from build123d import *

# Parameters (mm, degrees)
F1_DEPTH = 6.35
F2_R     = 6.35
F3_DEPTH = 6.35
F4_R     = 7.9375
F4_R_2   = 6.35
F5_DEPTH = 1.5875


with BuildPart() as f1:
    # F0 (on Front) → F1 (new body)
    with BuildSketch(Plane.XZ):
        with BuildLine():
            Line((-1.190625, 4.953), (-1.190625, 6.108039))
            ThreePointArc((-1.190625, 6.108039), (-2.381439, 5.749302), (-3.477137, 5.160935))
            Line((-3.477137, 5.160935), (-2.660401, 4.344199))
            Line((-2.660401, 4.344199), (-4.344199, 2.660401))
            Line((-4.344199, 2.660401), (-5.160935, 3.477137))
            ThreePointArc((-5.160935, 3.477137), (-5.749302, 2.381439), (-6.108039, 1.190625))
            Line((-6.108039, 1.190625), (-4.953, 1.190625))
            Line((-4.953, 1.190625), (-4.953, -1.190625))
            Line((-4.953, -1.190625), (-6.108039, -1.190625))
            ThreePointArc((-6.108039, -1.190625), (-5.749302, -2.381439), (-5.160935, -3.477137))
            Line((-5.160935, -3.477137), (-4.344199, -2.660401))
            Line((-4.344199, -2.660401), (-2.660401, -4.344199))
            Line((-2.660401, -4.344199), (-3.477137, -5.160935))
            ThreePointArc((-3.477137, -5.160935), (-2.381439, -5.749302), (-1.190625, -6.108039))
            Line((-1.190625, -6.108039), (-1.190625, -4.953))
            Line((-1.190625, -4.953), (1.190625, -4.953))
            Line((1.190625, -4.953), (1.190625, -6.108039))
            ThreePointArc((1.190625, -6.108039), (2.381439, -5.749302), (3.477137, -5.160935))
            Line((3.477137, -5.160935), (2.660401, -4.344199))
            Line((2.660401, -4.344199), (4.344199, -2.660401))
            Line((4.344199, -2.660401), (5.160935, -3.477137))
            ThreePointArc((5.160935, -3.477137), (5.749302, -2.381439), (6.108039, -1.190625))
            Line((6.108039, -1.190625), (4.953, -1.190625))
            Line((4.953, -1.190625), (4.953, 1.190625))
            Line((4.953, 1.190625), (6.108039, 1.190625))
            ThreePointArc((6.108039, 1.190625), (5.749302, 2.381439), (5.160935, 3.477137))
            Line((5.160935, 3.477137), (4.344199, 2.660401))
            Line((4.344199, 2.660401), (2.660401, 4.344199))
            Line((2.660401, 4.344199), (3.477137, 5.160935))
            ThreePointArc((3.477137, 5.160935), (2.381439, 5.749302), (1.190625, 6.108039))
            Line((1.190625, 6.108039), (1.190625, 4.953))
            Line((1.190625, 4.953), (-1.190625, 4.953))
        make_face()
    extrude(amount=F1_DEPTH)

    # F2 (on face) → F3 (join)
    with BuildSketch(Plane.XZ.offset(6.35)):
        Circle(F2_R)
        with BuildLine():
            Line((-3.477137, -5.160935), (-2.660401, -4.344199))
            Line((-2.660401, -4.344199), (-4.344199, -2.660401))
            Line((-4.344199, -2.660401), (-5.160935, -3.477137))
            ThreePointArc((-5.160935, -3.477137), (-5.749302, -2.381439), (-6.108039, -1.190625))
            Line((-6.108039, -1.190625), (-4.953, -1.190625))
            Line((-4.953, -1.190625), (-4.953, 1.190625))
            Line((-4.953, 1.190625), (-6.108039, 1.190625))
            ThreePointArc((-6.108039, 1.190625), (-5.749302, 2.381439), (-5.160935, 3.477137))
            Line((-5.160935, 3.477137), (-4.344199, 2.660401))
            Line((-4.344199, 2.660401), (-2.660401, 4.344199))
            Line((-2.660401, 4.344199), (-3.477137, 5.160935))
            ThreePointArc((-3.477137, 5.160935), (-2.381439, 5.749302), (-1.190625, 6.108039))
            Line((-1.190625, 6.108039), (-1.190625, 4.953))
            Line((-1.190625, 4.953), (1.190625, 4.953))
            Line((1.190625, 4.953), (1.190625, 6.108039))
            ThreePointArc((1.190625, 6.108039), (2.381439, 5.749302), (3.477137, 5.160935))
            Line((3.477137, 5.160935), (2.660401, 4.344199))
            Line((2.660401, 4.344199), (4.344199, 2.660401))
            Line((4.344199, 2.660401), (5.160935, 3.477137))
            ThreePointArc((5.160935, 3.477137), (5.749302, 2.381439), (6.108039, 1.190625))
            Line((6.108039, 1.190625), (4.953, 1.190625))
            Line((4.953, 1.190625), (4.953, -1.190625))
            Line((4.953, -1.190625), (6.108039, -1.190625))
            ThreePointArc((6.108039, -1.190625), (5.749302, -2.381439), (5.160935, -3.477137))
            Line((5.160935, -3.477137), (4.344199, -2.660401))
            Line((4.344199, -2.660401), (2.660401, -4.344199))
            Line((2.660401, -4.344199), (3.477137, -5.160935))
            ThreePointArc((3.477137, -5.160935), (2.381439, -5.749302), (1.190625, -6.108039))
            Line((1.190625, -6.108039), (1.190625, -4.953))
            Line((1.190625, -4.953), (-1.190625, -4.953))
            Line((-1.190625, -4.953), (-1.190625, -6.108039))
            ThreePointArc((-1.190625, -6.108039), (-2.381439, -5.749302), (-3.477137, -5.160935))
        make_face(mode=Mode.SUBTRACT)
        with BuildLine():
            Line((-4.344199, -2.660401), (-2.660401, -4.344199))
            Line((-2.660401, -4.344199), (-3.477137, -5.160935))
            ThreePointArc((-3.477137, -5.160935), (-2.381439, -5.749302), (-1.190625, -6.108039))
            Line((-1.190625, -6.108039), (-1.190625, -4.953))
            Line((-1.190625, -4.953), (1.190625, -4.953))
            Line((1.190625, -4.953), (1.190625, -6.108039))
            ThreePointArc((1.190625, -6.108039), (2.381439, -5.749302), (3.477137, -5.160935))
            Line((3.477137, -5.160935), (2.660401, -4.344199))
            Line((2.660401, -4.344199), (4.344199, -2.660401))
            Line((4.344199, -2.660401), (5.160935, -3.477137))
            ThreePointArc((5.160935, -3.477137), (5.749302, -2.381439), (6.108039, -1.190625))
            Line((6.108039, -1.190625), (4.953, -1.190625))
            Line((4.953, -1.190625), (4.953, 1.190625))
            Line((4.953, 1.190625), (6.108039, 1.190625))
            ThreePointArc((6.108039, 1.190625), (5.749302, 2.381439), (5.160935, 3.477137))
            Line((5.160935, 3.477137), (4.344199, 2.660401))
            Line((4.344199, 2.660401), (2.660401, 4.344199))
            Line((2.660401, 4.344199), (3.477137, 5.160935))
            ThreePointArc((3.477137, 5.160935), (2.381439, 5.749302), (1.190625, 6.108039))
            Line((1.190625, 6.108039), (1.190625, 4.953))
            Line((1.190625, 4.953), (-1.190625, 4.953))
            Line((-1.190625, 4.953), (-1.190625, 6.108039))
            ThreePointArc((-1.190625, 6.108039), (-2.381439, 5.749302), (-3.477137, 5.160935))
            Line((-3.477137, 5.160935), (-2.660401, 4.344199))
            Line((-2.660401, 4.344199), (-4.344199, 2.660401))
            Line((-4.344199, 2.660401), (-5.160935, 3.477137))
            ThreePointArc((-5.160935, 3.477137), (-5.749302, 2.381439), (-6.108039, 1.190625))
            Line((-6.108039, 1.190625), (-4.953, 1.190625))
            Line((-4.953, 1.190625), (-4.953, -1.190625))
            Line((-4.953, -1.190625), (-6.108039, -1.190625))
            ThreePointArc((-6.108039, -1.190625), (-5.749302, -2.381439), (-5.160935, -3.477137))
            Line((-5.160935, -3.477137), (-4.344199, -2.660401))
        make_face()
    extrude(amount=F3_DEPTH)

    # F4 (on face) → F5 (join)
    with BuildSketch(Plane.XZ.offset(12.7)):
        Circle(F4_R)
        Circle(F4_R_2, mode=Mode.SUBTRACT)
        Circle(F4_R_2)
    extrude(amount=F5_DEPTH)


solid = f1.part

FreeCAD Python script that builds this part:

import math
import FreeCAD as App
import Part
import Sketcher
Q = App.Units.Quantity

doc = App.newDocument("Part")
body = doc.addObject("PartDesign::Body", "Body")

# Sketch on XZ plane
sketch1 = body.newObject("Sketcher::SketchObject", "Sketch")
sketch1.AttachmentSupport = (doc.getObject("XZ_Plane"), [""])
sketch1.MapMode = "FlatFace"
sketch1.addGeometry([
    Part.LineSegment(App.Vector(-1.190625, 4.953, 0), App.Vector(-1.190625, 6.108039, 0)),  # 0
    Part.ArcOfCircle(Part.Circle(App.Vector(0.000007, -0.000018, 0), App.Vector(0, 0, 1), 6.223019), math.radians(101.030239), math.radians(123.969749)),  # 1
    Part.LineSegment(App.Vector(-3.477137, 5.160935, 0), App.Vector(-2.660401, 4.344199, 0)),  # 2
    Part.LineSegment(App.Vector(-2.660401, 4.344199, 0), App.Vector(-4.344199, 2.660401, 0)),  # 3
    Part.LineSegment(App.Vector(-4.344199, 2.660401, 0), App.Vector(-5.160935, 3.477137, 0)),  # 4
    Part.ArcOfCircle(Part.Circle(App.Vector(0.000018, -0.000007, 0), App.Vector(0, 0, 1), 6.223019), math.radians(146.030251), math.radians(168.969761)),  # 5
    Part.LineSegment(App.Vector(-6.108039, 1.190625, 0), App.Vector(-4.953, 1.190625, 0)),  # 6
    Part.LineSegment(App.Vector(-4.953, 1.190625, 0), App.Vector(-4.953, -1.190625, 0)),  # 7
    Part.LineSegment(App.Vector(-4.953, -1.190625, 0), App.Vector(-6.108039, -1.190625, 0)),  # 8
    Part.ArcOfCircle(Part.Circle(App.Vector(0.000018, 0.000007, 0), App.Vector(0, 0, 1), 6.223019), math.radians(-168.969761), math.radians(-146.030251)),  # 9
    Part.LineSegment(App.Vector(-5.160935, -3.477137, 0), App.Vector(-4.344199, -2.660401, 0)),  # 10
    Part.LineSegment(App.Vector(-4.344199, -2.660401, 0), App.Vector(-2.660401, -4.344199, 0)),  # 11
    Part.LineSegment(App.Vector(-2.660401, -4.344199, 0), App.Vector(-3.477137, -5.160935, 0)),  # 12
    Part.ArcOfCircle(Part.Circle(App.Vector(0.000007, 0.000018, 0), App.Vector(0, 0, 1), 6.223019), math.radians(-123.969749), math.radians(-101.030239)),  # 13
    Part.LineSegment(App.Vector(-1.190625, -6.108039, 0), App.Vector(-1.190625, -4.953, 0)),  # 14
    Part.LineSegment(App.Vector(-1.190625, -4.953, 0), App.Vector(1.190625, -4.953, 0)),  # 15
    Part.LineSegment(App.Vector(1.190625, -4.953, 0), App.Vector(1.190625, -6.108039, 0)),  # 16
    Part.ArcOfCircle(Part.Circle(App.Vector(-0.000007, 0.000018, 0), App.Vector(0, 0, 1), 6.223019), math.radians(-78.969761), math.radians(-56.030251)),  # 17
    Part.LineSegment(App.Vector(3.477137, -5.160935, 0), App.Vector(2.660401, -4.344199, 0)),  # 18
    Part.LineSegment(App.Vector(2.660401, -4.344199, 0), App.Vector(4.344199, -2.660401, 0)),  # 19
    Part.LineSegment(App.Vector(4.344199, -2.660401, 0), App.Vector(5.160935, -3.477137, 0)),  # 20
    Part.ArcOfCircle(Part.Circle(App.Vector(-0.000018, 0.000007, 0), App.Vector(0, 0, 1), 6.223019), math.radians(-33.969749), math.radians(-11.030239)),  # 21
    Part.LineSegment(App.Vector(6.108039, -1.190625, 0), App.Vector(4.953, -1.190625, 0)),  # 22
    Part.LineSegment(App.Vector(4.953, -1.190625, 0), App.Vector(4.953, 1.190625, 0)),  # 23
    Part.LineSegment(App.Vector(4.953, 1.190625, 0), App.Vector(6.108039, 1.190625, 0)),  # 24
    Part.ArcOfCircle(Part.Circle(App.Vector(-0.000018, -0.000007, 0), App.Vector(0, 0, 1), 6.223019), math.radians(11.030239), math.radians(33.969749)),  # 25
    Part.LineSegment(App.Vector(5.160935, 3.477137, 0), App.Vector(4.344199, 2.660401, 0)),  # 26
    Part.LineSegment(App.Vector(4.344199, 2.660401, 0), App.Vector(2.660401, 4.344199, 0)),  # 27
    Part.LineSegment(App.Vector(2.660401, 4.344199, 0), App.Vector(3.477137, 5.160935, 0)),  # 28
    Part.ArcOfCircle(Part.Circle(App.Vector(-0.000007, -0.000018, 0), App.Vector(0, 0, 1), 6.223019), math.radians(56.030251), math.radians(78.969761)),  # 29
    Part.LineSegment(App.Vector(1.190625, 6.108039, 0), App.Vector(1.190625, 4.953, 0)),  # 30
    Part.LineSegment(App.Vector(1.190625, 4.953, 0), App.Vector(-1.190625, 4.953, 0)),  # 31
], False)
sketch1.addConstraint([
    Sketcher.Constraint("Coincident", 0, 2, 1, 1),
    Sketcher.Constraint("Coincident", 1, 2, 2, 1),
    Sketcher.Constraint("Coincident", 2, 2, 3, 1),
    Sketcher.Constraint("Coincident", 3, 2, 4, 1),
    Sketcher.Constraint("Coincident", 4, 2, 5, 1),
    Sketcher.Constraint("Coincident", 5, 2, 6, 1),
    Sketcher.Constraint("Coincident", 6, 2, 7, 1),
    Sketcher.Constraint("Coincident", 7, 2, 8, 1),
    Sketcher.Constraint("Coincident", 8, 2, 9, 1),
    Sketcher.Constraint("Coincident", 9, 2, 10, 1),
    Sketcher.Constraint("Coincident", 10, 2, 11, 1),
    Sketcher.Constraint("Coincident", 11, 2, 12, 1),
    Sketcher.Constraint("Coincident", 12, 2, 13, 1),
    Sketcher.Constraint("Coincident", 13, 2, 14, 1),
    Sketcher.Constraint("Coincident", 14, 2, 15, 1),
    Sketcher.Constraint("Coincident", 15, 2, 16, 1),
    Sketcher.Constraint("Coincident", 16, 2, 17, 1),
    Sketcher.Constraint("Coincident", 17, 2, 18, 1),
    Sketcher.Constraint("Coincident", 18, 2, 19, 1),
    Sketcher.Constraint("Coincident", 19, 2, 20, 1),
    Sketcher.Constraint("Coincident", 20, 2, 21, 1),
    Sketcher.Constraint("Coincident", 21, 2, 22, 1),
    Sketcher.Constraint("Coincident", 22, 2, 23, 1),
    Sketcher.Constraint("Coincident", 23, 2, 24, 1),
    Sketcher.Constraint("Coincident", 24, 2, 25, 1),
    Sketcher.Constraint("Coincident", 25, 2, 26, 1),
    Sketcher.Constraint("Coincident", 26, 2, 27, 1),
    Sketcher.Constraint("Coincident", 27, 2, 28, 1),
    Sketcher.Constraint("Coincident", 28, 2, 29, 1),
    Sketcher.Constraint("Coincident", 29, 2, 30, 1),
    Sketcher.Constraint("Coincident", 30, 2, 31, 1),
    Sketcher.Constraint("Coincident", 31, 2, 0, 1),
    Sketcher.Constraint("Vertical", 0),
    Sketcher.Constraint("Horizontal", 6),
    Sketcher.Constraint("Vertical", 7),
    Sketcher.Constraint("Horizontal", 8),
    Sketcher.Constraint("Vertical", 14),
    Sketcher.Constraint("Horizontal", 15),
    Sketcher.Constraint("Vertical", 16),
    Sketcher.Constraint("Horizontal", 22),
    Sketcher.Constraint("Vertical", 23),
    Sketcher.Constraint("Horizontal", 24),
    Sketcher.Constraint("Vertical", 30),
    Sketcher.Constraint("Horizontal", 31),
    Sketcher.Constraint("Equal", 1, 5),
    Sketcher.Constraint("Equal", 5, 9),
    Sketcher.Constraint("Equal", 9, 13),
    Sketcher.Constraint("Equal", 13, 17),
    Sketcher.Constraint("Equal", 17, 21),
    Sketcher.Constraint("Equal", 21, 25),
    Sketcher.Constraint("Equal", 25, 29),
    Sketcher.Constraint("Symmetric", 1, 3, 17, 3, -1, 1),
    Sketcher.Constraint("Symmetric", 5, 3, 21, 3, -1, 1),
    Sketcher.Constraint("Symmetric", 9, 3, 25, 3, -1, 1),
    Sketcher.Constraint("Symmetric", 13, 3, 29, 3, -1, 1),
    Sketcher.Constraint("Symmetric", 2, 2, 18, 2, -1, 1),
    Sketcher.Constraint("Symmetric", 3, 2, 19, 2, -1, 1),
    Sketcher.Constraint("Symmetric", 6, 2, 22, 2, -1, 1),
    Sketcher.Constraint("Symmetric", 10, 2, 26, 2, -1, 1),
    Sketcher.Constraint("Symmetric", 11, 2, 27, 2, -1, 1),
    Sketcher.Constraint("Symmetric", 14, 2, 30, 2, -1, 1),
    Sketcher.Constraint("Symmetric", 13, 3, 17, 3, -2),
    Sketcher.Constraint("Symmetric", 9, 3, 21, 3, -2),
    Sketcher.Constraint("Symmetric", 11, 2, 18, 2, -2),
    Sketcher.Constraint("Symmetric", 10, 2, 19, 2, -2),
    Sketcher.Constraint("Perpendicular", 2, 3),
    Sketcher.Constraint("Perpendicular", 3, 4),
    Sketcher.Constraint("Perpendicular", 4, 10),
    Sketcher.Constraint("Perpendicular", 10, 11),
    Sketcher.Constraint("Perpendicular", 11, 12),
    Sketcher.Constraint("Perpendicular", 12, 18),
    Sketcher.Constraint("Perpendicular", 19, 20),
    Sketcher.Constraint("Perpendicular", 20, 26),
    Sketcher.Constraint("Perpendicular", 27, 28),
    Sketcher.Constraint("Horizontal", 13, 2, 16, 2),
    Sketcher.Constraint("Horizontal", 8, 2, 21, 2),
    Sketcher.Constraint("Horizontal", 6, 2, 23, 2),
    Sketcher.Constraint("Horizontal", 0, 2, 29, 2),
    Sketcher.Constraint("Equal", 24, 0),
    Sketcher.Constraint("Equal", 31, 7),
    Sketcher.Constraint("Equal", 2, 4),
    Sketcher.Constraint("DistanceX", 15, 1, 15, 2, Q("0.09375 in")),
    Sketcher.Constraint("Distance", 3, Q("0.09375 in")),
    Sketcher.Constraint("DistanceX", 6, 2, -1, 1, Q("0.195 in")),
    Sketcher.Constraint("DistanceY", 14, 2, -1, 1, Q("0.195 in")),
    Sketcher.Constraint("Radius", 1, 6.223019),
    Sketcher.Constraint("DistanceX", 6, 1, 6, 2, 1.155039),
    Sketcher.Constraint("DistanceX", 2, 2, -1, 1, 2.660401),
    Sketcher.Constraint("DistanceY", -1, 1, 2, 2, 4.344199),
    Sketcher.Constraint("DistanceY", 4, 2, 0, 2, 2.630902),
])
pad1 = body.newObject("PartDesign::Pad", "Pad")
pad1.Profile = sketch1
pad1.Length = Q("0.25 in")

# Sketch on XZ plane
sketch2 = body.newObject("Sketcher::SketchObject", "Sketch001")
sketch2.AttachmentSupport = (doc.getObject("XZ_Plane"), [""])
sketch2.MapMode = "FlatFace"
sketch2.AttachmentOffset = App.Placement(App.Vector(0, 0, 0.25 * 25.4), App.Rotation())
sketch2.addGeometry(Part.Circle(App.Vector(0, 0, 0), App.Vector(0, 0, 1), 6), False)
sketch2.addConstraint([
    Sketcher.Constraint("Coincident", 0, 3, -1, 1),
    Sketcher.Constraint("Diameter", 0, Q("0.5 in")),
])
pad2 = body.newObject("PartDesign::Pad", "Pad001")
pad2.Profile = sketch2
pad2.Length = Q("0.25 in")

# Sketch on XZ plane
sketch3 = body.newObject("Sketcher::SketchObject", "Sketch002")
sketch3.AttachmentSupport = (doc.getObject("XZ_Plane"), [""])
sketch3.MapMode = "FlatFace"
sketch3.AttachmentOffset = App.Placement(App.Vector(0, 0, 0.5 * 25.4), App.Rotation())
sketch3.addGeometry(Part.Circle(App.Vector(0, 0, 0), App.Vector(0, 0, 1), 8), False)
sketch3.addConstraint([
    Sketcher.Constraint("Coincident", 0, 3, -1, 1),
    Sketcher.Constraint("Diameter", 0, Q("0.625 in")),
])
pad3 = body.newObject("PartDesign::Pad", "Pad002")
pad3.Profile = sketch3
pad3.Length = Q("0.0625 in")

doc.recompute()
